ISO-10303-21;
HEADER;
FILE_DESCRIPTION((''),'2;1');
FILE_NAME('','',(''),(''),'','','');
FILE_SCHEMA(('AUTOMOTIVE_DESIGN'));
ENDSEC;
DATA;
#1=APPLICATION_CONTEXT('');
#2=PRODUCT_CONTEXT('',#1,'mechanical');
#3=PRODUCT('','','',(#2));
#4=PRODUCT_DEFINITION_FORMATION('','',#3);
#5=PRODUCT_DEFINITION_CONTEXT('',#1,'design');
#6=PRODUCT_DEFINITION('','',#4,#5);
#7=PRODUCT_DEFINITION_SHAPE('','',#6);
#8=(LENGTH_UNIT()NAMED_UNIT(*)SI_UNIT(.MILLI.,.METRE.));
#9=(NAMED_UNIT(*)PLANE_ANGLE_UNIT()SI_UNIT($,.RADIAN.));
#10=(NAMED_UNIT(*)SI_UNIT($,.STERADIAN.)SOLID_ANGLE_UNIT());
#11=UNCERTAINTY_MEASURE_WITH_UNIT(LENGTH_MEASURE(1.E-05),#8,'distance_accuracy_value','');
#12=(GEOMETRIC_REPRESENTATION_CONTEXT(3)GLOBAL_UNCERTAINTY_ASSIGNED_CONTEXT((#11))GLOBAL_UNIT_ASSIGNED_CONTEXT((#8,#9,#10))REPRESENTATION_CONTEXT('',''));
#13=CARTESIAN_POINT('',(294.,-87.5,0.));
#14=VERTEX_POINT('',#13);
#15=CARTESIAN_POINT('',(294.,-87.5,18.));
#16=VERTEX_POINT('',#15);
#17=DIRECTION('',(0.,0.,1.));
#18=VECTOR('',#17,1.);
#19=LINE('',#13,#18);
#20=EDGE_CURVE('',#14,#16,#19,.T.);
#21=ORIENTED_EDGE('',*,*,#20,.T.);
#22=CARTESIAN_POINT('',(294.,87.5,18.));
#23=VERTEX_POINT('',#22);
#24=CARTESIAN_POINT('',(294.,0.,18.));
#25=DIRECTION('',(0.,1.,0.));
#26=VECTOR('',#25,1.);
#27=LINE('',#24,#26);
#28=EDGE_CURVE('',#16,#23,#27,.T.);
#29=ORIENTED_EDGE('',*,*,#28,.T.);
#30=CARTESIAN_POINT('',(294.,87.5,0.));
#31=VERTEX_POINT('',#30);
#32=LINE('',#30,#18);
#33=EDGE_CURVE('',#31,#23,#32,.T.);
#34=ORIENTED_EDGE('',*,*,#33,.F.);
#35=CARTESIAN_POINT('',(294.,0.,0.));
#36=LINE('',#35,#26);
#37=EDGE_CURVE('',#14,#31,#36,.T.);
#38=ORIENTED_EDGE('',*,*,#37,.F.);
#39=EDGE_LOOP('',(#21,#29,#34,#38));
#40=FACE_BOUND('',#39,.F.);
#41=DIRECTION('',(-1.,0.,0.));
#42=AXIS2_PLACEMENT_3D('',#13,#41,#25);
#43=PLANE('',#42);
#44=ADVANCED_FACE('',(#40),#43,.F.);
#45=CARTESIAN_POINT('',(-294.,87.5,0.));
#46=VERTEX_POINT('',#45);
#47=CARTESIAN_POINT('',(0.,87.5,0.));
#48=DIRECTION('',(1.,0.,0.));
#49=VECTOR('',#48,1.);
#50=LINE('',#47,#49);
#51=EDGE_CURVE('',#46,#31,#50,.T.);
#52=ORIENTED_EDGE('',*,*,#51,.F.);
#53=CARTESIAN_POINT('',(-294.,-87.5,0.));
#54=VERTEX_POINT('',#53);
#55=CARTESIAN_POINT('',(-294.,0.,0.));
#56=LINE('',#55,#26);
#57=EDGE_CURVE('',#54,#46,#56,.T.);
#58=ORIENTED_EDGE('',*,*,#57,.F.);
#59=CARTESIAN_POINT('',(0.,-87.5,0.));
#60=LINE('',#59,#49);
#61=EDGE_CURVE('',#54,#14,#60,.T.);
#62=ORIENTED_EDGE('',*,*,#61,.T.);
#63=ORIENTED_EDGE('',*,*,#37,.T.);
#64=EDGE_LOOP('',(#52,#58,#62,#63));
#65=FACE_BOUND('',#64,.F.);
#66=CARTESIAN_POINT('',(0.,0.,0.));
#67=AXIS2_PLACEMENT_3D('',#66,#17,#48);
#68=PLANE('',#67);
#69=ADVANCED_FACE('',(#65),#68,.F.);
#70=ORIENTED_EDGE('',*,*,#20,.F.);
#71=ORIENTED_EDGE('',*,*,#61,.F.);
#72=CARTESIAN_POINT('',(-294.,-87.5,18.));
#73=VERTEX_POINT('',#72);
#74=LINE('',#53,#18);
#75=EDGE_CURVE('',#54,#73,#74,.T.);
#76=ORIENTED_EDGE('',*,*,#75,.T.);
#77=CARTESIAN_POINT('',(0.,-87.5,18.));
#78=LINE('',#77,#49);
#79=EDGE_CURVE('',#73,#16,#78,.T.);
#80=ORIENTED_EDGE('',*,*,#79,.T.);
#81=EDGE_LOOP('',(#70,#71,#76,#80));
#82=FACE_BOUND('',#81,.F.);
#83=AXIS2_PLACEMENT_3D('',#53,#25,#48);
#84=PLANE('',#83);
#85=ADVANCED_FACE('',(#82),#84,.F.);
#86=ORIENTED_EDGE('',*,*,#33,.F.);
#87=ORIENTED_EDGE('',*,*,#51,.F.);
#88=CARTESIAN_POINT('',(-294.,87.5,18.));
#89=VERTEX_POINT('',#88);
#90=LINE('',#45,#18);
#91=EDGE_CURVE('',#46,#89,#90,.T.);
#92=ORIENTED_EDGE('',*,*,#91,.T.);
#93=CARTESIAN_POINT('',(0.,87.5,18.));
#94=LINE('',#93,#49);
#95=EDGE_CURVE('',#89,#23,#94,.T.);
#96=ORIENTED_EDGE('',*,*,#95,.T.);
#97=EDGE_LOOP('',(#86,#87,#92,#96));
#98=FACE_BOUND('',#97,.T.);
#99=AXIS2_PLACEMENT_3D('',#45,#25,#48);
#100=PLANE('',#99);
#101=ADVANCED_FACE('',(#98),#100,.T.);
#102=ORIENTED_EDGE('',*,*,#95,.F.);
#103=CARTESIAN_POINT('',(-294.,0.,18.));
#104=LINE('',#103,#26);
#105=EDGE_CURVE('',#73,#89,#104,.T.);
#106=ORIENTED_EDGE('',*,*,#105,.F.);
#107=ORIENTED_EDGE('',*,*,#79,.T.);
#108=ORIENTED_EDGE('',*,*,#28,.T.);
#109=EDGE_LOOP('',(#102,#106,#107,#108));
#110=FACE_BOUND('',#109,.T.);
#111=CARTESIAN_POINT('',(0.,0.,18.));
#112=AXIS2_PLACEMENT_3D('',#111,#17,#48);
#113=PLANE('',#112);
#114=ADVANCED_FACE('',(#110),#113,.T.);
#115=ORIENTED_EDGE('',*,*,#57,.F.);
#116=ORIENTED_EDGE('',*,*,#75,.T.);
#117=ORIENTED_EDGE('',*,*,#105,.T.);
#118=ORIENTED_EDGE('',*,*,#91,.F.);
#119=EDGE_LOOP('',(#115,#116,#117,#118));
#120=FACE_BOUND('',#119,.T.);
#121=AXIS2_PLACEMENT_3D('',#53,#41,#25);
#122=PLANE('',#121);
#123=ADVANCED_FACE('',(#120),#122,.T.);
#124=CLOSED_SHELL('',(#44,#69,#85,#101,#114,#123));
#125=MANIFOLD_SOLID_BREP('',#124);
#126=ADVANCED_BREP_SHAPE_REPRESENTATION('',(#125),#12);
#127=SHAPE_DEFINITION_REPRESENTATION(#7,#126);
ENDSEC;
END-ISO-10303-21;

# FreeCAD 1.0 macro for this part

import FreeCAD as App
import Part
import Sketcher

V = App.Vector

doc = App.newDocument("Part")
body = doc.addObject("PartDesign::Body", "Body")

sketch1 = body.newObject("Sketcher::SketchObject", "Sketch")
sketch1.AttachmentSupport = (doc.getObject("XY_Plane"), [""])
sketch1.MapMode = "FlatFace"
sketch1.addGeometry([
    Part.LineSegment(V(-294, 87.5, 0), V(-294, -87.5, 0)),
    Part.LineSegment(V(-294, -87.5, 0), V(294, -87.5, 0)),
    Part.LineSegment(V(294, -87.5, 0), V(294, 87.5, 0)),
    Part.LineSegment(V(294, 87.5, 0), V(-294, 87.5, 0)),
], False)
sketch1.addConstraint([
    Sketcher.Constraint("Coincident", 0, 2, 1, 1),
    Sketcher.Constraint("Coincident", 1, 2, 2, 1),
    Sketcher.Constraint("Coincident", 2, 2, 3, 1),
    Sketcher.Constraint("Coincident", 3, 2, 0, 1),
    Sketcher.Constraint("Vertical", 0),
    Sketcher.Constraint("Horizontal", 1),
    Sketcher.Constraint("Vertical", 2),
    Sketcher.Constraint("Horizontal", 3),
    Sketcher.Constraint("Symmetric", 0, 2, 2, 2, -1, 1),
    Sketcher.Constraint("DistanceX", 1, 1, 1, 2, 588.0),
    Sketcher.Constraint("DistanceY", 0, 2, 0, 1, 175.0),
])
pad1 = body.newObject("PartDesign::Pad", "Pad")
pad1.Profile = sketch1
pad1.Length = 18

doc.recompute()
